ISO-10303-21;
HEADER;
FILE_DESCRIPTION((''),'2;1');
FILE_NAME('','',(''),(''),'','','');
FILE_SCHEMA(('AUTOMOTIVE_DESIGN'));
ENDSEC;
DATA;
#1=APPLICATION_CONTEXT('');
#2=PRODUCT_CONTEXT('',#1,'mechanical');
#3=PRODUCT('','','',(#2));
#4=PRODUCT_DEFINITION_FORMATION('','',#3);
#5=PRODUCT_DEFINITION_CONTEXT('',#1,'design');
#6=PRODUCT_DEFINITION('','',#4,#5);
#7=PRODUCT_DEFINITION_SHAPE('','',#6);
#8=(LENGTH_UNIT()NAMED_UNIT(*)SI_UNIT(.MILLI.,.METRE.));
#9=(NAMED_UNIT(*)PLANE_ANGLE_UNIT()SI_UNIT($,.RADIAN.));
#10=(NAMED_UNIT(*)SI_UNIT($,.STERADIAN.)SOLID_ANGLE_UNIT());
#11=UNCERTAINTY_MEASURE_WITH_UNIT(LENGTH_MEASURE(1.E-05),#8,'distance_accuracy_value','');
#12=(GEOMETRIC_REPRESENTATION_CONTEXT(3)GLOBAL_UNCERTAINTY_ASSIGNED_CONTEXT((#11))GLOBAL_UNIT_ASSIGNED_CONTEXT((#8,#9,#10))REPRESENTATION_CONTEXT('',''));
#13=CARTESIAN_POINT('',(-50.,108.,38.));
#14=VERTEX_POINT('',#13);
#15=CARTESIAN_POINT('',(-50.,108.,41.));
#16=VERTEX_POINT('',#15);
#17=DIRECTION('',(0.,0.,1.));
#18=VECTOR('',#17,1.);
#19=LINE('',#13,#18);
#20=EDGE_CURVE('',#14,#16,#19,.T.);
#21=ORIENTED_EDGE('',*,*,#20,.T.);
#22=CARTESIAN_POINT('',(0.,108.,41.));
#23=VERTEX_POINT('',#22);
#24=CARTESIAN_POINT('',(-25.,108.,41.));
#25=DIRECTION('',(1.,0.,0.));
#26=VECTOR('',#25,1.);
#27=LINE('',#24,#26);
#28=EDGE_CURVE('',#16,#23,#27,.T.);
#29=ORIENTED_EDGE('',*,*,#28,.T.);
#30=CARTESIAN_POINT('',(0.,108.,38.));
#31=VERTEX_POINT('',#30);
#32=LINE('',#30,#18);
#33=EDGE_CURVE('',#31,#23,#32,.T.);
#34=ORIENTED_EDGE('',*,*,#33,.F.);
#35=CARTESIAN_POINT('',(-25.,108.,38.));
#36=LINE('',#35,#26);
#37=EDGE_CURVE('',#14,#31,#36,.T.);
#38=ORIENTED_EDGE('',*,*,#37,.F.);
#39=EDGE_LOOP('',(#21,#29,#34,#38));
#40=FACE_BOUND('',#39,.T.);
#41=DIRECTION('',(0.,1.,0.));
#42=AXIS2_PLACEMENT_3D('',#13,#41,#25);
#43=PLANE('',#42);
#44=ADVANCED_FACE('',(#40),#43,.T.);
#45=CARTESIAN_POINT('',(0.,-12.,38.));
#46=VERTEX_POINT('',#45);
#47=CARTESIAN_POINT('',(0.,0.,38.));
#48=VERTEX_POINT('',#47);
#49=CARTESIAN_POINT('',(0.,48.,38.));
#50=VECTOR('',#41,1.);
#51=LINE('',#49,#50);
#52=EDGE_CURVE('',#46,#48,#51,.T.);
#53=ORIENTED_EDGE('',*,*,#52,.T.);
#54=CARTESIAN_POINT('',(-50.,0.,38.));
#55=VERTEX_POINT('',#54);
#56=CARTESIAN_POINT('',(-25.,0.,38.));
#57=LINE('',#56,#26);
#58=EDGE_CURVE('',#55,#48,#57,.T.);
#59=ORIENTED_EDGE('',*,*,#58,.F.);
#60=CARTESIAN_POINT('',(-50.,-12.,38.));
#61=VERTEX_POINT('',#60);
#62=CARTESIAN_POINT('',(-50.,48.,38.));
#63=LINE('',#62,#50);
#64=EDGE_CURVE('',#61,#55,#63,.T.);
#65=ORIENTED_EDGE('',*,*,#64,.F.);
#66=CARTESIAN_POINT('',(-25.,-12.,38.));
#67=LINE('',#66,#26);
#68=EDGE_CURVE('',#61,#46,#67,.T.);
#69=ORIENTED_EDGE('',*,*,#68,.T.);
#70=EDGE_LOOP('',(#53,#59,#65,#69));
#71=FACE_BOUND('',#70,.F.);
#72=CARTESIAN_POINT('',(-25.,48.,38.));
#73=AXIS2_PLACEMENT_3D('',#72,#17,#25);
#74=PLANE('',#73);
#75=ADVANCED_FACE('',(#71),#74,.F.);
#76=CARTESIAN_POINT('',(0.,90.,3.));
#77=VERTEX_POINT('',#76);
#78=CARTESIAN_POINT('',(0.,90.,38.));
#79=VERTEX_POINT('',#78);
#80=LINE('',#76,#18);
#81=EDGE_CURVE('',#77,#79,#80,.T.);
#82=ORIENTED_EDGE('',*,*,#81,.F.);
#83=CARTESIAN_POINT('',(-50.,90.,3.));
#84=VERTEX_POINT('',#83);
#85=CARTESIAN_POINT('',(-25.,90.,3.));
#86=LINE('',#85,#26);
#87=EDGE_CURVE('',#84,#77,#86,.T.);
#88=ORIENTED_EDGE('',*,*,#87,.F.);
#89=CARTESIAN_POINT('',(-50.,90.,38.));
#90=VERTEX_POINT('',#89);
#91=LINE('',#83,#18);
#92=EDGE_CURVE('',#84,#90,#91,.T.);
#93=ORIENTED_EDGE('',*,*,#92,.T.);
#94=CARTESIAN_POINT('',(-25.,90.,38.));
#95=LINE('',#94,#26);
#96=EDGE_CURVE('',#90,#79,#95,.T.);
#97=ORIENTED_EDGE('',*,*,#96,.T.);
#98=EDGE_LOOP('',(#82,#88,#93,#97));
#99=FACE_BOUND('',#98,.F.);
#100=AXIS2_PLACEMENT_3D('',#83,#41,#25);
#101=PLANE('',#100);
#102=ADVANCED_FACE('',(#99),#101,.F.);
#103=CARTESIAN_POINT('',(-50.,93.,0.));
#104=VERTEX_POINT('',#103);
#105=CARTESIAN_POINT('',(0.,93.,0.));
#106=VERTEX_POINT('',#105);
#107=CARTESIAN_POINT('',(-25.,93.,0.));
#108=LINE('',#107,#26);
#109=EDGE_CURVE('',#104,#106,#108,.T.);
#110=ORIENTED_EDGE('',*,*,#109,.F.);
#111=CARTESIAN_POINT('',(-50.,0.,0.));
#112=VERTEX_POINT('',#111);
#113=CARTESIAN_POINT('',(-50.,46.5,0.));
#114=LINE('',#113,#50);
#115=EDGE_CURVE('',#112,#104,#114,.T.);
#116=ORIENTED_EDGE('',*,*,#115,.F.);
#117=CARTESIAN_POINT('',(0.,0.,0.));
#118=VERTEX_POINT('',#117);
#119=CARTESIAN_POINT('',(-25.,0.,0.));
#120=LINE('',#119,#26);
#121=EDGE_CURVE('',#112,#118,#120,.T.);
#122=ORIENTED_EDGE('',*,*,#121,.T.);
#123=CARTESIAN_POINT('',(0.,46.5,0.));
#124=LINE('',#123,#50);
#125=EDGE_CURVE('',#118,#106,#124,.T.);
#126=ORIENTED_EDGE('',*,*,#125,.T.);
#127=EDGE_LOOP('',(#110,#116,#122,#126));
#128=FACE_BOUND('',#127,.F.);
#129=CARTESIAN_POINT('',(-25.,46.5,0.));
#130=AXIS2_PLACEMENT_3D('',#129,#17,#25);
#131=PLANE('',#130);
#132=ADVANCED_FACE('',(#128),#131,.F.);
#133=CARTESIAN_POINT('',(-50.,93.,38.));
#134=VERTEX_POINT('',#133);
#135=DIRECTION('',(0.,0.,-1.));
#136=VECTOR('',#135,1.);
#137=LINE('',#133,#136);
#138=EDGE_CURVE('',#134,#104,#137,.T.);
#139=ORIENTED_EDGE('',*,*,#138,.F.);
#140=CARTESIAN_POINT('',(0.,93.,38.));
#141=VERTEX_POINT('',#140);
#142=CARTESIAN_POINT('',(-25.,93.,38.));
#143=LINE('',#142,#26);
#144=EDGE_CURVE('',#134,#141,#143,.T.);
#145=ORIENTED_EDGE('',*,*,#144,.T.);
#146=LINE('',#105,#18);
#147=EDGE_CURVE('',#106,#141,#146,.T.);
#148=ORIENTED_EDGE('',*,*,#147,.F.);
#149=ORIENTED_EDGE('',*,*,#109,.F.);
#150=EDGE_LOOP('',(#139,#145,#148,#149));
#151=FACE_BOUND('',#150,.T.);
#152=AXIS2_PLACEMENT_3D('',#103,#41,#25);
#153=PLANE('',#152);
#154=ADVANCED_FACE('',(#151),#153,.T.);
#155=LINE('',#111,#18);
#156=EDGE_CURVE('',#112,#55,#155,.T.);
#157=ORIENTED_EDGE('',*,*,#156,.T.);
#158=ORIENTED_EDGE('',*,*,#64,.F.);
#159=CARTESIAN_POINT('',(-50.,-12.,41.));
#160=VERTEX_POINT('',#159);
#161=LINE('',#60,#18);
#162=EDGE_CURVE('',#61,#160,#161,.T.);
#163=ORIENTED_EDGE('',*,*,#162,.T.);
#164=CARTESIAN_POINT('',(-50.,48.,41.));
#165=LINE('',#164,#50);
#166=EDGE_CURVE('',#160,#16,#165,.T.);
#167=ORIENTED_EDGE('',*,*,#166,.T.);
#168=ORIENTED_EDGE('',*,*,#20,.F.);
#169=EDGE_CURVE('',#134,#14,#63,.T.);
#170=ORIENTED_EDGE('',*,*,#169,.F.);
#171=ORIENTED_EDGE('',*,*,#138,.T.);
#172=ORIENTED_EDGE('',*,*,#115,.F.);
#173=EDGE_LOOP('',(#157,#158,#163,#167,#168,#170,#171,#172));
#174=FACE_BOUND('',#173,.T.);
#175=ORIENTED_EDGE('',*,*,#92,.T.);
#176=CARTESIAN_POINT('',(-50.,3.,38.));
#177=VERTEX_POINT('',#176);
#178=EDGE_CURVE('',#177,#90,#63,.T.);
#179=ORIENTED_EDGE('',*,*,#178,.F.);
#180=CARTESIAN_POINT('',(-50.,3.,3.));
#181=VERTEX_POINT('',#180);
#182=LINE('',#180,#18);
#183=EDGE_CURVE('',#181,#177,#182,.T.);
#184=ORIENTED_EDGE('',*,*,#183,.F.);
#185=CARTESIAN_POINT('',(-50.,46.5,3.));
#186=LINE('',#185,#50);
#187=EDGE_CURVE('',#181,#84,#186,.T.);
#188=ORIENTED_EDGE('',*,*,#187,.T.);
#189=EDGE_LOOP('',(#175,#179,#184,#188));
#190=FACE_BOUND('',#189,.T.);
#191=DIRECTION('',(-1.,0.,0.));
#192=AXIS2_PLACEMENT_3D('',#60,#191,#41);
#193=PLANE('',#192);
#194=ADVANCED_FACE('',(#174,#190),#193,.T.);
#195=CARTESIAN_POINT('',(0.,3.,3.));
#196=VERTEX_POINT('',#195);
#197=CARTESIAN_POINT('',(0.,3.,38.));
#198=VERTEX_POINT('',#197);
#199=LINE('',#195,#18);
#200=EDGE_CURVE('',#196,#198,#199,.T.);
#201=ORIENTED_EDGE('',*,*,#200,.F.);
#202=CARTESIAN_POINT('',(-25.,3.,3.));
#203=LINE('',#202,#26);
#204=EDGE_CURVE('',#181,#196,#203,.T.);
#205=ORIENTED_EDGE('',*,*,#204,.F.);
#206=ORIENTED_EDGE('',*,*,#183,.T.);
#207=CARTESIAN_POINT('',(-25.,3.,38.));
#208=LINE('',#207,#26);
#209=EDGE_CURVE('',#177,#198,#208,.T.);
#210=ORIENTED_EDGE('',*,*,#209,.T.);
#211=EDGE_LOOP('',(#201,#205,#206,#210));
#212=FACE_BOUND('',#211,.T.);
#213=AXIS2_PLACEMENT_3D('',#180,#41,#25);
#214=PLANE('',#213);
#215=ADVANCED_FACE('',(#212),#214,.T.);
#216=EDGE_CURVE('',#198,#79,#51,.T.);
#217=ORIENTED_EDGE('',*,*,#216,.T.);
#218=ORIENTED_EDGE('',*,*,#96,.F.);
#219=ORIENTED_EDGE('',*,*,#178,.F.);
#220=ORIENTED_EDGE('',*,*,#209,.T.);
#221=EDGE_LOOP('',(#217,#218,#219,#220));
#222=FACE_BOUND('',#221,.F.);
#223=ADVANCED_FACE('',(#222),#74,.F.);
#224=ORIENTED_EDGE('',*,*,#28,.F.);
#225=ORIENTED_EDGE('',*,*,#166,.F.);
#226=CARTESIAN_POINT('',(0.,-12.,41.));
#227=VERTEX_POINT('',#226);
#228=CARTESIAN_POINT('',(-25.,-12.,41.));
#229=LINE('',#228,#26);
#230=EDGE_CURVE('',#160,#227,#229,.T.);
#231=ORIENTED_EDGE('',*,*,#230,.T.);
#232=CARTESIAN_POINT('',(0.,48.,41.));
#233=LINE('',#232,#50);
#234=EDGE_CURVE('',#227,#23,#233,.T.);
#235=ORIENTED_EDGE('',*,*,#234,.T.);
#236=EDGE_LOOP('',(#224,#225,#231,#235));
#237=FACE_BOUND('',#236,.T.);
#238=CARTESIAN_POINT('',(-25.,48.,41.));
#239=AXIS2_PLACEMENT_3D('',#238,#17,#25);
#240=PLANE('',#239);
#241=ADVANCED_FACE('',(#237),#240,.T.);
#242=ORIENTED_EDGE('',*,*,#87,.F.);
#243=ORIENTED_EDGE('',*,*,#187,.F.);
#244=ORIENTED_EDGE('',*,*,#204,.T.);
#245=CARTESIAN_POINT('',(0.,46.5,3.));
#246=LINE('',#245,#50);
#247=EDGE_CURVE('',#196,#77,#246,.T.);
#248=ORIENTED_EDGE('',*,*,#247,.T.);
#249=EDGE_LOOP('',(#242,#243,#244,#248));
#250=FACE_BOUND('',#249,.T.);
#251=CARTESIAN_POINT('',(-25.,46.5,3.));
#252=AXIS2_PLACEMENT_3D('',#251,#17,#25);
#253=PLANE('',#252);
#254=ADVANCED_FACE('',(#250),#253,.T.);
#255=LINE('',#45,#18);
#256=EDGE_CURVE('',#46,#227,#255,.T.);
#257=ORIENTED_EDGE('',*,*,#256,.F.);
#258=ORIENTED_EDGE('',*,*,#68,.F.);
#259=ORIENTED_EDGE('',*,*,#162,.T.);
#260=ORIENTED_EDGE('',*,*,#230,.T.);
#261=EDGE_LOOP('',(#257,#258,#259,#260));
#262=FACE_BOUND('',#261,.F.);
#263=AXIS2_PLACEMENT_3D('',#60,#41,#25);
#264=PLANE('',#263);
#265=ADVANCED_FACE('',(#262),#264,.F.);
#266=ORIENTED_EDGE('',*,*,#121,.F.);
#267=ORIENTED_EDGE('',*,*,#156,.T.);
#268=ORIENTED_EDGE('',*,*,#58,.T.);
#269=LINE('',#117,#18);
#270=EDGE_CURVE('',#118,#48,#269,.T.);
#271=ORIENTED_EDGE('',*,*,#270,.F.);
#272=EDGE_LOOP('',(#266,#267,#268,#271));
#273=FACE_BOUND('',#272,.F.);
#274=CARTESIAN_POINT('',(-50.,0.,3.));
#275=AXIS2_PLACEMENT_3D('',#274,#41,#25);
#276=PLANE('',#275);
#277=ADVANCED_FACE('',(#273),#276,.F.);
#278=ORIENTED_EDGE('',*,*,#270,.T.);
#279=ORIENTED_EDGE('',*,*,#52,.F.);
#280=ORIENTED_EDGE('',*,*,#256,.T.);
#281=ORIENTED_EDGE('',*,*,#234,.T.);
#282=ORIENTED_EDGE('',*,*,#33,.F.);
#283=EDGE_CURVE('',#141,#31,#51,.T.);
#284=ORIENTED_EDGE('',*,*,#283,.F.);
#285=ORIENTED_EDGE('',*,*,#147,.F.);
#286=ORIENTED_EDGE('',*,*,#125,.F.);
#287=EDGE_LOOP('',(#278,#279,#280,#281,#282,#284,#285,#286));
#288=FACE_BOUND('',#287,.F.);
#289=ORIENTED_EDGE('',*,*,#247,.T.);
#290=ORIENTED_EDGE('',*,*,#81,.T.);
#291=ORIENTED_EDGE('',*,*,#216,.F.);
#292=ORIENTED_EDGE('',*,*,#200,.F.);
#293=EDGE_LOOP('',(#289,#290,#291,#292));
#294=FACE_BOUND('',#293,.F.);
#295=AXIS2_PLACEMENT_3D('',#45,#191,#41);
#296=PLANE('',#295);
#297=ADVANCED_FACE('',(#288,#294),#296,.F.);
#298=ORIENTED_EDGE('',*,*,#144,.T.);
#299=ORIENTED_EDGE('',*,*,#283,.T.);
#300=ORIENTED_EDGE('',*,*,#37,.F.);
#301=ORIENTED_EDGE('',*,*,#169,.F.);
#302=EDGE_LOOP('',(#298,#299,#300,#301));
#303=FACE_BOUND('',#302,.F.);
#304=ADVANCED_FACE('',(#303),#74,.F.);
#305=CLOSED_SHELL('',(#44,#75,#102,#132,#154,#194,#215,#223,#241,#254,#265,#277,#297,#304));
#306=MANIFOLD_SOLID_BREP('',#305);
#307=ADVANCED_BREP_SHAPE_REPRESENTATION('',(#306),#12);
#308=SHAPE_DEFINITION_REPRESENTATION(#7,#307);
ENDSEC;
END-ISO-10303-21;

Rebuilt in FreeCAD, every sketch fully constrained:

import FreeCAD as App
import Part
import Sketcher
from FreeCAD import Vector
Q = App.Units.Quantity

doc = App.newDocument("Part")
params = doc.addObject("Spreadsheet::Sheet", "Params")
for row, (alias, value) in enumerate([
    ("sketch1_width", "50 mm"),
    ("sketch1_height", "93 mm"),
    ("pad1_length", "3 mm"),
    ("sketch2_width", "50 mm"),
    ("sketch2_height", "3 mm"),
    ("pad2_length", "35 mm"),
    ("sketch3_width", "50 mm"),
    ("sketch3_height", "120 mm"),
    ("pad3_length", "3 mm"),
], start=1):
    params.set(f"A{row}", alias)
    params.set(f"B{row}", "=" + value)
    params.setAlias(f"B{row}", alias)

body = doc.addObject("PartDesign::Body", "Body")

# Sketch on XY plane
sketch1 = body.newObject("Sketcher::SketchObject", "Sketch")
sketch1.AttachmentSupport = (doc.getObject("XY_Plane"), [""])
sketch1.MapMode = "FlatFace"
sketch1.addGeometry([
    Part.LineSegment(Vector(-50, 93, 0), Vector(-50, 0, 0)),
    Part.LineSegment(Vector(-50, 0, 0), Vector(0, 0, 0)),
    Part.LineSegment(Vector(0, 0, 0), Vector(0, 93, 0)),
    Part.LineSegment(Vector(0, 93, 0), Vector(-50, 93, 0)),
], False)
sketch1.addConstraint([
    Sketcher.Constraint("Coincident", 0, 2, 1, 1),
    Sketcher.Constraint("Coincident", 1, 2, 2, 1),
    Sketcher.Constraint("Coincident", 2, 2, 3, 1),
    Sketcher.Constraint("Coincident", 3, 2, 0, 1),
    Sketcher.Constraint("Vertical", 0),
    Sketcher.Constraint("Horizontal", 1),
    Sketcher.Constraint("Vertical", 2),
    Sketcher.Constraint("Horizontal", 3),
    Sketcher.Constraint("Coincident", 1, 2, -1, 1),
    Sketcher.Constraint("DistanceX", 1, 1, 1, 2, Q("50 mm")),
    Sketcher.Constraint("DistanceY", 0, 2, 0, 1, Q("93 mm")),
])
sketch1.setExpression("Constraints[9]", "Params.sketch1_width")
sketch1.setExpression("Constraints[10]", "Params.sketch1_height")
pad1 = body.newObject("PartDesign::Pad", "Pad")
pad1.Profile = sketch1
pad1.setExpression("Length", "Params.pad1_length")

# Sketch on XY plane
sketch2 = body.newObject("Sketcher::SketchObject", "Sketch001")
sketch2.AttachmentSupport = (doc.getObject("XY_Plane"), [""])
sketch2.MapMode = "FlatFace"
sketch2.AttachmentOffset = App.Placement(Vector(0, 0, 3), App.Rotation())
sketch2.addGeometry([
    Part.LineSegment(Vector(-50, 3, 0), Vector(-50, 0, 0)),  # 0
    Part.LineSegment(Vector(-50, 0, 0), Vector(0, 0, 0)),  # 1
    Part.LineSegment(Vector(0, 0, 0), Vector(0, 3, 0)),  # 2
    Part.LineSegment(Vector(0, 3, 0), Vector(-50, 3, 0)),  # 3
    Part.LineSegment(Vector(-50, 93, 0), Vector(-50, 90, 0)),  # 4
    Part.LineSegment(Vector(-50, 90, 0), Vector(0, 90, 0)),  # 5
    Part.LineSegment(Vector(0, 90, 0), Vector(0, 93, 0)),  # 6
    Part.LineSegment(Vector(0, 93, 0), Vector(-50, 93, 0)),  # 7
], False)
sketch2.addConstraint([
    Sketcher.Constraint("Coincident", 0, 2, 1, 1),
    Sketcher.Constraint("Coincident", 1, 2, 2, 1),
    Sketcher.Constraint("Coincident", 2, 2, 3, 1),
    Sketcher.Constraint("Coincident", 3, 2, 0, 1),
    Sketcher.Constraint("Coincident", 4, 2, 5, 1),
    Sketcher.Constraint("Coincident", 5, 2, 6, 1),
    Sketcher.Constraint("Coincident", 6, 2, 7, 1),
    Sketcher.Constraint("Coincident", 7, 2, 4, 1),
    Sketcher.Constraint("Vertical", 0),
    Sketcher.Constraint("Horizontal", 1),
    Sketcher.Constraint("Vertical", 2),
    Sketcher.Constraint("Horizontal", 3),
    Sketcher.Constraint("Vertical", 4),
    Sketcher.Constraint("Horizontal", 5),
    Sketcher.Constraint("Vertical", 6),
    Sketcher.Constraint("Horizontal", 7),
    Sketcher.Constraint("Coincident", 1, 2, -1, 1),
    Sketcher.Constraint("PointOnObject", 5, 2, -2),
    Sketcher.Constraint("Vertical", 3, 2, 4, 2),
    Sketcher.Constraint("Equal", 2, 4),
    Sketcher.Constraint("DistanceX", 1, 1, 1, 2, Q("50 mm")),
    Sketcher.Constraint("DistanceY", 0, 2, 0, 1, Q("3 mm")),
    Sketcher.Constraint("DistanceY", -1, 1, 4, 2, Q("90 mm")),
])
sketch2.setExpression("Constraints[20]", "Params.sketch2_width")
sketch2.setExpression("Constraints[21]", "Params.sketch2_height")
pad2 = body.newObject("PartDesign::Pad", "Pad001")
pad2.Profile = sketch2
pad2.setExpression("Length", "Params.pad2_length")

# Sketch on XY plane
sketch3 = body.newObject("Sketcher::SketchObject", "Sketch002")
sketch3.AttachmentSupport = (doc.getObject("XY_Plane"), [""])
sketch3.MapMode = "FlatFace"
sketch3.AttachmentOffset = App.Placement(Vector(0, 0, 38), App.Rotation())
sketch3.addGeometry([
    Part.LineSegment(Vector(-50, 108, 0), Vector(-50, -12, 0)),
    Part.LineSegment(Vector(-50, -12, 0), Vector(0, -12, 0)),
    Part.LineSegment(Vector(0, -12, 0), Vector(0, 108, 0)),
    Part.LineSegment(Vector(0, 108, 0), Vector(-50, 108, 0)),
], False)
sketch3.addConstraint([
    Sketcher.Constraint("Coincident", 0, 2, 1, 1),
    Sketcher.Constraint("Coincident", 1, 2, 2, 1),
    Sketcher.Constraint("Coincident", 2, 2, 3, 1),
    Sketcher.Constraint("Coincident", 3, 2, 0, 1),
    Sketcher.Constraint("Vertical", 0),
    Sketcher.Constraint("Horizontal", 1),
    Sketcher.Constraint("Vertical", 2),
    Sketcher.Constraint("Horizontal", 3),
    Sketcher.Constraint("PointOnObject", 1, 2, -2),
    Sketcher.Constraint("DistanceX", 1, 1, 1, 2, Q("50 mm")),
    Sketcher.Constraint("DistanceY", 0, 2, 0, 1, Q("120 mm")),
    Sketcher.Constraint("DistanceY", 0, 2, -1, 1, Q("12 mm")),
])
sketch3.setExpression("Constraints[9]", "Params.sketch3_width")
sketch3.setExpression("Constraints[10]", "Params.sketch3_height")
pad3 = body.newObject("PartDesign::Pad", "Pad002")
pad3.Profile = sketch3
pad3.setExpression("Length", "Params.pad3_length")

doc.recompute()
